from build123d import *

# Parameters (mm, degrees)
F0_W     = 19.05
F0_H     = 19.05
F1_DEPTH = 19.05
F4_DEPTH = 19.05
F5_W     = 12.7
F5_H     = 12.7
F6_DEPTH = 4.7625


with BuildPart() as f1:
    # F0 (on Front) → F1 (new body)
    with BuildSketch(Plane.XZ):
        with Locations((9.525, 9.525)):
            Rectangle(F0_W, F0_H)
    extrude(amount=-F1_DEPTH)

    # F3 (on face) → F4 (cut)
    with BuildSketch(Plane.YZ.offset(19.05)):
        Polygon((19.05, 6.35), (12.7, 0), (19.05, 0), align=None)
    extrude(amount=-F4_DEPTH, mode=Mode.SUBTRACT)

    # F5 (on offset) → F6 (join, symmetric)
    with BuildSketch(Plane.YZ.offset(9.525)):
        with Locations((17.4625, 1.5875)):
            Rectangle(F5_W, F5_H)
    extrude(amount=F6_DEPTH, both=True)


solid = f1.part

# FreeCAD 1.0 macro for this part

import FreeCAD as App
import Part
import Sketcher
from FreeCAD import Vector
Q = App.Units.Quantity


def add_polygon(sketch, points):
    """Adds a closed chain of lines whose ends are joined by coincident constraints."""
    first, n = sketch.GeometryCount, len(points)
    for a, b in zip(points, points[1:] + points[:1]):
        sketch.addGeometry(Part.LineSegment(App.Vector(*a, 0), App.Vector(*b, 0)), False)
    for i in range(n):
        sketch.addConstraint(Sketcher.Constraint("Coincident", first + i, 2, first + (i + 1) % n, 1))

doc = App.newDocument("Part")
body = doc.addObject("PartDesign::Body", "Body")

sketch1 = doc.addObject("Sketcher::SketchObject", "Sketch")
body.addObject(sketch1)
sketch1.AttachmentSupport = (doc.XZ_Plane, [""])
sketch1.MapMode = "FlatFace"
add_polygon(sketch1, [(0, 19), (0, 0), (19, 0), (19, 19)])
sketch1.addConstraint([
    Sketcher.Constraint("Vertical", 0),
    Sketcher.Constraint("Horizontal", 1),
    Sketcher.Constraint("Vertical", 2),
    Sketcher.Constraint("Horizontal", 3),
    Sketcher.Constraint("Coincident", 0, 2, -1, 1),
    Sketcher.Constraint("Equal", 3, 0),
    Sketcher.Constraint("DistanceX", 1, 1, 1, 2, Q("0.75 in")),
])
pad1 = doc.addObject("PartDesign::Pad", "Pad")
body.addObject(pad1)
pad1.Profile = sketch1
pad1.Length = Q("0.75 in")
pad1.Reversed = True

sketch2 = doc.addObject("Sketcher::SketchObject", "Sketch001")
body.addObject(sketch2)
sketch2.AttachmentSupport = (doc.YZ_Plane, [""])
sketch2.MapMode = "FlatFace"
sketch2.AttachmentOffset = App.Placement(Vector(0, 0, 0.75 * 25.4), App.Rotation())
add_polygon(sketch2, [(19, 6), (13, 0), (19, 0)])
sketch2.addConstraint([
    Sketcher.Constraint("Horizontal", 1),
    Sketcher.Constraint("Vertical", 2),
    Sketcher.Constraint("PointOnObject", 0, 2, -1),
    Sketcher.Constraint("Equal", 1, 2),
    Sketcher.Constraint("DistanceX", 1, 1, 1, 2, Q("0.25 in")),
    Sketcher.Constraint("DistanceX", -1, 1, 0, 2, Q("0.5 in")),
])
pocket1 = doc.addObject("PartDesign::Pocket", "Pocket")
body.addObject(pocket1)
pocket1.Profile = sketch2
pocket1.Length = Q("0.75 in")

sketch3 = doc.addObject("Sketcher::SketchObject", "Sketch002")
body.addObject(sketch3)
sketch3.AttachmentSupport = (doc.YZ_Plane, [""])
sketch3.MapMode = "FlatFace"
sketch3.AttachmentOffset = App.Placement(Vector(0, 0, 0.375 * 25.4), App.Rotation())
add_polygon(sketch3, [(11, 8), (11, -5), (24, -5), (24, 8)])
sketch3.addConstraint([
    Sketcher.Constraint("Vertical", 0),
    Sketcher.Constraint("Horizontal", 1),
    Sketcher.Constraint("Vertical", 2),
    Sketcher.Constraint("Horizontal", 3),
    Sketcher.Constraint("Equal", 3, 0),
    Sketcher.Constraint("DistanceX", 1, 1, 1, 2, Q("0.5 in")),
    Sketcher.Constraint("DistanceX", -1, 1, 0, 2, Q("0.4375 in")),
    Sketcher.Constraint("DistanceY", 0, 2, -1, 1, Q("0.1875 in")),
])
pad2 = doc.addObject("PartDesign::Pad", "Pad001")
body.addObject(pad2)
pad2.Profile = sketch3
pad2.Length = Q("0.375 in")
pad2.Midplane = True

doc.recompute()
